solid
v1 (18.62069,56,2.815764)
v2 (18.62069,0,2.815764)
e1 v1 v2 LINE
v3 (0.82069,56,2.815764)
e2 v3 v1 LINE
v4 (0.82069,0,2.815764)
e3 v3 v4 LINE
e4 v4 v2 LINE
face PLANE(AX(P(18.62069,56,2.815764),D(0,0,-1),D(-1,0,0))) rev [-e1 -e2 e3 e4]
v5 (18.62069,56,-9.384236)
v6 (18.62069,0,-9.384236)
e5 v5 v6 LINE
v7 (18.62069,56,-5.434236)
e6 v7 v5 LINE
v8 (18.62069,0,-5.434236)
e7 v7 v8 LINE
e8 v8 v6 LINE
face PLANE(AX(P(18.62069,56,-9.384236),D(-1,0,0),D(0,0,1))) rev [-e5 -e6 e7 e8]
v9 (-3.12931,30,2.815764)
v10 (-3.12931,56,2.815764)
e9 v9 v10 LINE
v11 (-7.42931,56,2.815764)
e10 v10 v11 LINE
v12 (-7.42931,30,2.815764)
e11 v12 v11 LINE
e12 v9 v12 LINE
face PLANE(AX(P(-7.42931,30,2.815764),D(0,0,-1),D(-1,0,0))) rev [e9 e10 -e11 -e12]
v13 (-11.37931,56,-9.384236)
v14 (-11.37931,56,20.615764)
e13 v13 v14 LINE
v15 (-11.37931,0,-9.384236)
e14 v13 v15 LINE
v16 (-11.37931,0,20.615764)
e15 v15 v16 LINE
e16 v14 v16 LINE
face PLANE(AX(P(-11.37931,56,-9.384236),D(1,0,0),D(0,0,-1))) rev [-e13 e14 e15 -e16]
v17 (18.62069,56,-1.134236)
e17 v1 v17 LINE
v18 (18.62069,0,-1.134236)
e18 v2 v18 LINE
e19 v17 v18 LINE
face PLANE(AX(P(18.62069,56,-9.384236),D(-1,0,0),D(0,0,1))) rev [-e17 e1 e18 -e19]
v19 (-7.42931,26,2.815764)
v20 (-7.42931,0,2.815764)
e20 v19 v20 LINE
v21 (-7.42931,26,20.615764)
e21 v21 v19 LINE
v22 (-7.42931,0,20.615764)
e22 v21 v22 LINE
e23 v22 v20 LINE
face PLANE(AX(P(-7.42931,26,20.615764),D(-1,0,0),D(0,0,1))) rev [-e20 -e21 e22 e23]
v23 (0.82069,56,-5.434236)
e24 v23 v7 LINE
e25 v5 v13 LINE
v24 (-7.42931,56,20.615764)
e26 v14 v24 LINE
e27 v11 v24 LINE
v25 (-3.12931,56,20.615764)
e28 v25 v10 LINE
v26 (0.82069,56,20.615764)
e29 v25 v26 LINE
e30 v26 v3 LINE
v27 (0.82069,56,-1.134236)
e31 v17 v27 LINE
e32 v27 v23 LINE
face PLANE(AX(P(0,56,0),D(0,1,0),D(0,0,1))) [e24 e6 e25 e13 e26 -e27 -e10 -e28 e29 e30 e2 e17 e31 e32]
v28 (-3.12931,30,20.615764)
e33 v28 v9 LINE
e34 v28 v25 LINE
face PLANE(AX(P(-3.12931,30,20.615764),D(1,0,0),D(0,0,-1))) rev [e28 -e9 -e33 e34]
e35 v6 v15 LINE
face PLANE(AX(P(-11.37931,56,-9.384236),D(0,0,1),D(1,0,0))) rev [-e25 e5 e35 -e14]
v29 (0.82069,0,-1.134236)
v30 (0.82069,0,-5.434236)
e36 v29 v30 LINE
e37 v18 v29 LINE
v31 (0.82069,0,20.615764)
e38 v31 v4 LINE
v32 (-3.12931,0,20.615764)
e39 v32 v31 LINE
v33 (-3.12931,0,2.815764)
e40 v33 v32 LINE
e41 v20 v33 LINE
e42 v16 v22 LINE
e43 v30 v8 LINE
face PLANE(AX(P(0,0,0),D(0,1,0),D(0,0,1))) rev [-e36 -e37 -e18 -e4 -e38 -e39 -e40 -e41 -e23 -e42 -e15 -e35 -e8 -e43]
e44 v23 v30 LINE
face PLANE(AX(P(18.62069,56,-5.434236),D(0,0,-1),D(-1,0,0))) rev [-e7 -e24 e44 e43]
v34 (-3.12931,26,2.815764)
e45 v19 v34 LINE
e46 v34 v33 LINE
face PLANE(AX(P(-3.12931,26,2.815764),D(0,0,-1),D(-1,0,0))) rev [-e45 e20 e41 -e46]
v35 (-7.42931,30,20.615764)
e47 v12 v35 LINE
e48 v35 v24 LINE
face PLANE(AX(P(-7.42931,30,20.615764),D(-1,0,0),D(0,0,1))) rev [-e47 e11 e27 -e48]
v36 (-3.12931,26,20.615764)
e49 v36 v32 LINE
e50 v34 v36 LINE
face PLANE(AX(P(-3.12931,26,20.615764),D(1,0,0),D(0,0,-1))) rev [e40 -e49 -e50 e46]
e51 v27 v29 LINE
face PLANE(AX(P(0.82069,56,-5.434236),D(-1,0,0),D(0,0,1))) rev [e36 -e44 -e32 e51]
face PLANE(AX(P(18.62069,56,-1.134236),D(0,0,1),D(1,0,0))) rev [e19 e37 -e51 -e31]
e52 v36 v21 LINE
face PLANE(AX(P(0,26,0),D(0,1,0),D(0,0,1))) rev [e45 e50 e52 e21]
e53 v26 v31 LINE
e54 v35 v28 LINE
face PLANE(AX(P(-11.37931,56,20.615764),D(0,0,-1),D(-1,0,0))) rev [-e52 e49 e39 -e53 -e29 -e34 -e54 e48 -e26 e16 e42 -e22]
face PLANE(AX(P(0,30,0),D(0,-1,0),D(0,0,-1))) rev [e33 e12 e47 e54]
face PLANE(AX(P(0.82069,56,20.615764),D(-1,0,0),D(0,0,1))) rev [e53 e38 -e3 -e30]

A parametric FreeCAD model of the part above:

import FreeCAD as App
import Part
import Sketcher

V = App.Vector
Q = App.Units.Quantity


def add_polygon(sketch, points):
    """Adds a closed chain of lines whose ends are joined by coincident constraints."""
    first, n = sketch.GeometryCount, len(points)
    for a, b in zip(points, points[1:] + points[:1]):
        sketch.addGeometry(Part.LineSegment(App.Vector(*a, 0), App.Vector(*b, 0)), False)
    for i in range(n):
        sketch.addConstraint(Sketcher.Constraint("Coincident", first + i, 2, first + (i + 1) % n, 1))

doc = App.newDocument("Part")
params = doc.addObject("Spreadsheet::Sheet", "Params")
for row, (alias, value) in enumerate([
    ("sketch1_width", "30 mm"),
    ("pad1_length", "56 mm"),
    ("sketch2_width", "17.8 mm"),
    ("sketch2_height", "4.3 mm"),
    ("sketch3_width", "4.3 mm"),
    ("sketch3_height", "17.8 mm"),
    ("pocket2_length", "26 mm"),
    ("sketch4_width", "4.3 mm"),
    ("sketch4_height", "17.8 mm"),
    ("pocket3_length", "26 mm"),
], start=1):
    params.set(f"A{row}", alias)
    params.set(f"B{row}", "=" + value)
    params.setAlias(f"B{row}", alias)

body = doc.addObject("PartDesign::Body", "Body")

# Sketch on XZ plane
sketch1 = body.newObject("Sketcher::SketchObject", "Sketch")
sketch1.AttachmentSupport = (doc.getObject("XZ_Plane"), [""])
sketch1.MapMode = "FlatFace"
add_polygon(sketch1, [(-11.37931, -9.384236), (-11.37931, 20.615764), (18.62069, 20.615764), (18.62069, -9.384236)])  # lines 0-3
sketch1.addConstraint([
    Sketcher.Constraint("Vertical", 0),
    Sketcher.Constraint("Horizontal", 1),
    Sketcher.Constraint("Vertical", 2),
    Sketcher.Constraint("Horizontal", 3),
    Sketcher.Constraint("Equal", 3, 0),
    Sketcher.Constraint("DistanceX", 1, 1, 1, 2, Q("30 mm")),
    Sketcher.Constraint("DistanceX", 0, 2, -1, 1, Q("11.37931 mm")),
    Sketcher.Constraint("DistanceY", -1, 1, 0, 2, Q("20.615764 mm")),
])
sketch1.setExpression("Constraints[9]", "Params.sketch1_width")
pad1 = body.newObject("PartDesign::Pad", "Pad")
pad1.Profile = sketch1
pad1.setExpression("Length", "Params.pad1_length")
pad1.Reversed = True

# Sketch on XZ plane
sketch2 = body.newObject("Sketcher::SketchObject", "Sketch001")
sketch2.AttachmentSupport = (doc.getObject("XZ_Plane"), [""])
sketch2.MapMode = "FlatFace"
add_polygon(sketch2, [(0.82069, -1.134236), (0.82069, -5.434236), (18.62069, -5.434236), (18.62069, -1.134236)])  # lines 0-3
add_polygon(sketch2, [(0.82069, 20.615764), (0.82069, 2.815764), (18.62069, 2.815764), (18.62069, 20.615764)])  # lines 4-7
sketch2.addConstraint([
    Sketcher.Constraint("Vertical", 0),
    Sketcher.Constraint("Horizontal", 1),
    Sketcher.Constraint("Vertical", 2),
    Sketcher.Constraint("Horizontal", 3),
    Sketcher.Constraint("Vertical", 4),
    Sketcher.Constraint("Horizontal", 5),
    Sketcher.Constraint("Vertical", 6),
    Sketcher.Constraint("Horizontal", 7),
    Sketcher.Constraint("Vertical", 3, 2, 4, 2),
    Sketcher.Constraint("Vertical", 2, 2, 5, 2),
    Sketcher.Constraint("Equal", 7, 4),
    Sketcher.Constraint("DistanceX", 1, 1, 1, 2, Q("17.8 mm")),
    Sketcher.Constraint("DistanceY", 0, 2, 0, 1, Q("4.3 mm")),
    Sketcher.Constraint("DistanceY", 3, 2, 4, 2, Q("3.95 mm")),
    Sketcher.Constraint("DistanceX", -1, 1, 0, 2, Q("0.82069 mm")),
    Sketcher.Constraint("DistanceY", 0, 2, -1, 1, Q("5.434236 mm")),
])
sketch2.setExpression("Constraints[19]", "Params.sketch2_width")
sketch2.setExpression("Constraints[20]", "Params.sketch2_height")
pocket1 = body.newObject("PartDesign::Pocket", "Pocket")
pocket1.Profile = sketch2
pocket1.Type = "ThroughAll"

# Sketch on XZ plane
sketch3 = body.newObject("Sketcher::SketchObject", "Sketch002")
sketch3.AttachmentSupport = (doc.getObject("XZ_Plane"), [""])
sketch3.MapMode = "FlatFace"
add_polygon(sketch3, [(-7.42931, 20.615764), (-7.42931, 2.815764), (-3.12931, 2.815764), (-3.12931, 20.615764)])  # lines 0-3
sketch3.addConstraint([
    Sketcher.Constraint("Vertical", 0),
    Sketcher.Constraint("Horizontal", 1),
    Sketcher.Constraint("Vertical", 2),
    Sketcher.Constraint("Horizontal", 3),
    Sketcher.Constraint("DistanceX", 1, 1, 1, 2, Q("4.3 mm")),
    Sketcher.Constraint("DistanceY", 0, 2, 0, 1, Q("17.8 mm")),
    Sketcher.Constraint("DistanceX", 0, 2, -1, 1, Q("7.42931 mm")),
    Sketcher.Constraint("DistanceY", -1, 1, 0, 2, Q("2.815764 mm")),
])
sketch3.setExpression("Constraints[8]", "Params.sketch3_width")
sketch3.setExpression("Constraints[9]", "Params.sketch3_height")
pocket2 = body.newObject("PartDesign::Pocket", "Pocket001")
pocket2.Profile = sketch3
pocket2.setExpression("Length", "Params.pocket2_length")

# Sketch on XZ plane
sketch4 = body.newObject("Sketcher::SketchObject", "Sketch003")
sketch4.AttachmentSupport = (doc.getObject("XZ_Plane"), [""])
sketch4.MapMode = "FlatFace"
sketch4.AttachmentOffset = App.Placement(V(0, 0, -56), App.Rotation())
add_polygon(sketch4, [(-7.42931, 2.815764), (-7.42931, 20.615764), (-3.12931, 20.615764), (-3.12931, 2.815764)])  # lines 0-3
sketch4.addConstraint([
    Sketcher.Constraint("Vertical", 0),
    Sketcher.Constraint("Horizontal", 1),
    Sketcher.Constraint("Vertical", 2),
    Sketcher.Constraint("Horizontal", 3),
    Sketcher.Constraint("DistanceX", 1, 1, 1, 2, Q("4.3 mm")),
    Sketcher.Constraint("DistanceY", 0, 1, 0, 2, Q("17.8 mm")),
    Sketcher.Constraint("DistanceX", 0, 2, -1, 1, Q("7.42931 mm")),
    Sketcher.Constraint("DistanceY", -1, 1, 0, 2, Q("20.615764 mm")),
])
sketch4.setExpression("Constraints[8]", "Params.sketch4_width")
sketch4.setExpression("Constraints[9]", "Params.sketch4_height")
pocket3 = body.newObject("PartDesign::Pocket", "Pocket002")
pocket3.Profile = sketch4
pocket3.setExpression("Length", "Params.pocket3_length")
pocket3.Reversed = True

doc.recompute()
